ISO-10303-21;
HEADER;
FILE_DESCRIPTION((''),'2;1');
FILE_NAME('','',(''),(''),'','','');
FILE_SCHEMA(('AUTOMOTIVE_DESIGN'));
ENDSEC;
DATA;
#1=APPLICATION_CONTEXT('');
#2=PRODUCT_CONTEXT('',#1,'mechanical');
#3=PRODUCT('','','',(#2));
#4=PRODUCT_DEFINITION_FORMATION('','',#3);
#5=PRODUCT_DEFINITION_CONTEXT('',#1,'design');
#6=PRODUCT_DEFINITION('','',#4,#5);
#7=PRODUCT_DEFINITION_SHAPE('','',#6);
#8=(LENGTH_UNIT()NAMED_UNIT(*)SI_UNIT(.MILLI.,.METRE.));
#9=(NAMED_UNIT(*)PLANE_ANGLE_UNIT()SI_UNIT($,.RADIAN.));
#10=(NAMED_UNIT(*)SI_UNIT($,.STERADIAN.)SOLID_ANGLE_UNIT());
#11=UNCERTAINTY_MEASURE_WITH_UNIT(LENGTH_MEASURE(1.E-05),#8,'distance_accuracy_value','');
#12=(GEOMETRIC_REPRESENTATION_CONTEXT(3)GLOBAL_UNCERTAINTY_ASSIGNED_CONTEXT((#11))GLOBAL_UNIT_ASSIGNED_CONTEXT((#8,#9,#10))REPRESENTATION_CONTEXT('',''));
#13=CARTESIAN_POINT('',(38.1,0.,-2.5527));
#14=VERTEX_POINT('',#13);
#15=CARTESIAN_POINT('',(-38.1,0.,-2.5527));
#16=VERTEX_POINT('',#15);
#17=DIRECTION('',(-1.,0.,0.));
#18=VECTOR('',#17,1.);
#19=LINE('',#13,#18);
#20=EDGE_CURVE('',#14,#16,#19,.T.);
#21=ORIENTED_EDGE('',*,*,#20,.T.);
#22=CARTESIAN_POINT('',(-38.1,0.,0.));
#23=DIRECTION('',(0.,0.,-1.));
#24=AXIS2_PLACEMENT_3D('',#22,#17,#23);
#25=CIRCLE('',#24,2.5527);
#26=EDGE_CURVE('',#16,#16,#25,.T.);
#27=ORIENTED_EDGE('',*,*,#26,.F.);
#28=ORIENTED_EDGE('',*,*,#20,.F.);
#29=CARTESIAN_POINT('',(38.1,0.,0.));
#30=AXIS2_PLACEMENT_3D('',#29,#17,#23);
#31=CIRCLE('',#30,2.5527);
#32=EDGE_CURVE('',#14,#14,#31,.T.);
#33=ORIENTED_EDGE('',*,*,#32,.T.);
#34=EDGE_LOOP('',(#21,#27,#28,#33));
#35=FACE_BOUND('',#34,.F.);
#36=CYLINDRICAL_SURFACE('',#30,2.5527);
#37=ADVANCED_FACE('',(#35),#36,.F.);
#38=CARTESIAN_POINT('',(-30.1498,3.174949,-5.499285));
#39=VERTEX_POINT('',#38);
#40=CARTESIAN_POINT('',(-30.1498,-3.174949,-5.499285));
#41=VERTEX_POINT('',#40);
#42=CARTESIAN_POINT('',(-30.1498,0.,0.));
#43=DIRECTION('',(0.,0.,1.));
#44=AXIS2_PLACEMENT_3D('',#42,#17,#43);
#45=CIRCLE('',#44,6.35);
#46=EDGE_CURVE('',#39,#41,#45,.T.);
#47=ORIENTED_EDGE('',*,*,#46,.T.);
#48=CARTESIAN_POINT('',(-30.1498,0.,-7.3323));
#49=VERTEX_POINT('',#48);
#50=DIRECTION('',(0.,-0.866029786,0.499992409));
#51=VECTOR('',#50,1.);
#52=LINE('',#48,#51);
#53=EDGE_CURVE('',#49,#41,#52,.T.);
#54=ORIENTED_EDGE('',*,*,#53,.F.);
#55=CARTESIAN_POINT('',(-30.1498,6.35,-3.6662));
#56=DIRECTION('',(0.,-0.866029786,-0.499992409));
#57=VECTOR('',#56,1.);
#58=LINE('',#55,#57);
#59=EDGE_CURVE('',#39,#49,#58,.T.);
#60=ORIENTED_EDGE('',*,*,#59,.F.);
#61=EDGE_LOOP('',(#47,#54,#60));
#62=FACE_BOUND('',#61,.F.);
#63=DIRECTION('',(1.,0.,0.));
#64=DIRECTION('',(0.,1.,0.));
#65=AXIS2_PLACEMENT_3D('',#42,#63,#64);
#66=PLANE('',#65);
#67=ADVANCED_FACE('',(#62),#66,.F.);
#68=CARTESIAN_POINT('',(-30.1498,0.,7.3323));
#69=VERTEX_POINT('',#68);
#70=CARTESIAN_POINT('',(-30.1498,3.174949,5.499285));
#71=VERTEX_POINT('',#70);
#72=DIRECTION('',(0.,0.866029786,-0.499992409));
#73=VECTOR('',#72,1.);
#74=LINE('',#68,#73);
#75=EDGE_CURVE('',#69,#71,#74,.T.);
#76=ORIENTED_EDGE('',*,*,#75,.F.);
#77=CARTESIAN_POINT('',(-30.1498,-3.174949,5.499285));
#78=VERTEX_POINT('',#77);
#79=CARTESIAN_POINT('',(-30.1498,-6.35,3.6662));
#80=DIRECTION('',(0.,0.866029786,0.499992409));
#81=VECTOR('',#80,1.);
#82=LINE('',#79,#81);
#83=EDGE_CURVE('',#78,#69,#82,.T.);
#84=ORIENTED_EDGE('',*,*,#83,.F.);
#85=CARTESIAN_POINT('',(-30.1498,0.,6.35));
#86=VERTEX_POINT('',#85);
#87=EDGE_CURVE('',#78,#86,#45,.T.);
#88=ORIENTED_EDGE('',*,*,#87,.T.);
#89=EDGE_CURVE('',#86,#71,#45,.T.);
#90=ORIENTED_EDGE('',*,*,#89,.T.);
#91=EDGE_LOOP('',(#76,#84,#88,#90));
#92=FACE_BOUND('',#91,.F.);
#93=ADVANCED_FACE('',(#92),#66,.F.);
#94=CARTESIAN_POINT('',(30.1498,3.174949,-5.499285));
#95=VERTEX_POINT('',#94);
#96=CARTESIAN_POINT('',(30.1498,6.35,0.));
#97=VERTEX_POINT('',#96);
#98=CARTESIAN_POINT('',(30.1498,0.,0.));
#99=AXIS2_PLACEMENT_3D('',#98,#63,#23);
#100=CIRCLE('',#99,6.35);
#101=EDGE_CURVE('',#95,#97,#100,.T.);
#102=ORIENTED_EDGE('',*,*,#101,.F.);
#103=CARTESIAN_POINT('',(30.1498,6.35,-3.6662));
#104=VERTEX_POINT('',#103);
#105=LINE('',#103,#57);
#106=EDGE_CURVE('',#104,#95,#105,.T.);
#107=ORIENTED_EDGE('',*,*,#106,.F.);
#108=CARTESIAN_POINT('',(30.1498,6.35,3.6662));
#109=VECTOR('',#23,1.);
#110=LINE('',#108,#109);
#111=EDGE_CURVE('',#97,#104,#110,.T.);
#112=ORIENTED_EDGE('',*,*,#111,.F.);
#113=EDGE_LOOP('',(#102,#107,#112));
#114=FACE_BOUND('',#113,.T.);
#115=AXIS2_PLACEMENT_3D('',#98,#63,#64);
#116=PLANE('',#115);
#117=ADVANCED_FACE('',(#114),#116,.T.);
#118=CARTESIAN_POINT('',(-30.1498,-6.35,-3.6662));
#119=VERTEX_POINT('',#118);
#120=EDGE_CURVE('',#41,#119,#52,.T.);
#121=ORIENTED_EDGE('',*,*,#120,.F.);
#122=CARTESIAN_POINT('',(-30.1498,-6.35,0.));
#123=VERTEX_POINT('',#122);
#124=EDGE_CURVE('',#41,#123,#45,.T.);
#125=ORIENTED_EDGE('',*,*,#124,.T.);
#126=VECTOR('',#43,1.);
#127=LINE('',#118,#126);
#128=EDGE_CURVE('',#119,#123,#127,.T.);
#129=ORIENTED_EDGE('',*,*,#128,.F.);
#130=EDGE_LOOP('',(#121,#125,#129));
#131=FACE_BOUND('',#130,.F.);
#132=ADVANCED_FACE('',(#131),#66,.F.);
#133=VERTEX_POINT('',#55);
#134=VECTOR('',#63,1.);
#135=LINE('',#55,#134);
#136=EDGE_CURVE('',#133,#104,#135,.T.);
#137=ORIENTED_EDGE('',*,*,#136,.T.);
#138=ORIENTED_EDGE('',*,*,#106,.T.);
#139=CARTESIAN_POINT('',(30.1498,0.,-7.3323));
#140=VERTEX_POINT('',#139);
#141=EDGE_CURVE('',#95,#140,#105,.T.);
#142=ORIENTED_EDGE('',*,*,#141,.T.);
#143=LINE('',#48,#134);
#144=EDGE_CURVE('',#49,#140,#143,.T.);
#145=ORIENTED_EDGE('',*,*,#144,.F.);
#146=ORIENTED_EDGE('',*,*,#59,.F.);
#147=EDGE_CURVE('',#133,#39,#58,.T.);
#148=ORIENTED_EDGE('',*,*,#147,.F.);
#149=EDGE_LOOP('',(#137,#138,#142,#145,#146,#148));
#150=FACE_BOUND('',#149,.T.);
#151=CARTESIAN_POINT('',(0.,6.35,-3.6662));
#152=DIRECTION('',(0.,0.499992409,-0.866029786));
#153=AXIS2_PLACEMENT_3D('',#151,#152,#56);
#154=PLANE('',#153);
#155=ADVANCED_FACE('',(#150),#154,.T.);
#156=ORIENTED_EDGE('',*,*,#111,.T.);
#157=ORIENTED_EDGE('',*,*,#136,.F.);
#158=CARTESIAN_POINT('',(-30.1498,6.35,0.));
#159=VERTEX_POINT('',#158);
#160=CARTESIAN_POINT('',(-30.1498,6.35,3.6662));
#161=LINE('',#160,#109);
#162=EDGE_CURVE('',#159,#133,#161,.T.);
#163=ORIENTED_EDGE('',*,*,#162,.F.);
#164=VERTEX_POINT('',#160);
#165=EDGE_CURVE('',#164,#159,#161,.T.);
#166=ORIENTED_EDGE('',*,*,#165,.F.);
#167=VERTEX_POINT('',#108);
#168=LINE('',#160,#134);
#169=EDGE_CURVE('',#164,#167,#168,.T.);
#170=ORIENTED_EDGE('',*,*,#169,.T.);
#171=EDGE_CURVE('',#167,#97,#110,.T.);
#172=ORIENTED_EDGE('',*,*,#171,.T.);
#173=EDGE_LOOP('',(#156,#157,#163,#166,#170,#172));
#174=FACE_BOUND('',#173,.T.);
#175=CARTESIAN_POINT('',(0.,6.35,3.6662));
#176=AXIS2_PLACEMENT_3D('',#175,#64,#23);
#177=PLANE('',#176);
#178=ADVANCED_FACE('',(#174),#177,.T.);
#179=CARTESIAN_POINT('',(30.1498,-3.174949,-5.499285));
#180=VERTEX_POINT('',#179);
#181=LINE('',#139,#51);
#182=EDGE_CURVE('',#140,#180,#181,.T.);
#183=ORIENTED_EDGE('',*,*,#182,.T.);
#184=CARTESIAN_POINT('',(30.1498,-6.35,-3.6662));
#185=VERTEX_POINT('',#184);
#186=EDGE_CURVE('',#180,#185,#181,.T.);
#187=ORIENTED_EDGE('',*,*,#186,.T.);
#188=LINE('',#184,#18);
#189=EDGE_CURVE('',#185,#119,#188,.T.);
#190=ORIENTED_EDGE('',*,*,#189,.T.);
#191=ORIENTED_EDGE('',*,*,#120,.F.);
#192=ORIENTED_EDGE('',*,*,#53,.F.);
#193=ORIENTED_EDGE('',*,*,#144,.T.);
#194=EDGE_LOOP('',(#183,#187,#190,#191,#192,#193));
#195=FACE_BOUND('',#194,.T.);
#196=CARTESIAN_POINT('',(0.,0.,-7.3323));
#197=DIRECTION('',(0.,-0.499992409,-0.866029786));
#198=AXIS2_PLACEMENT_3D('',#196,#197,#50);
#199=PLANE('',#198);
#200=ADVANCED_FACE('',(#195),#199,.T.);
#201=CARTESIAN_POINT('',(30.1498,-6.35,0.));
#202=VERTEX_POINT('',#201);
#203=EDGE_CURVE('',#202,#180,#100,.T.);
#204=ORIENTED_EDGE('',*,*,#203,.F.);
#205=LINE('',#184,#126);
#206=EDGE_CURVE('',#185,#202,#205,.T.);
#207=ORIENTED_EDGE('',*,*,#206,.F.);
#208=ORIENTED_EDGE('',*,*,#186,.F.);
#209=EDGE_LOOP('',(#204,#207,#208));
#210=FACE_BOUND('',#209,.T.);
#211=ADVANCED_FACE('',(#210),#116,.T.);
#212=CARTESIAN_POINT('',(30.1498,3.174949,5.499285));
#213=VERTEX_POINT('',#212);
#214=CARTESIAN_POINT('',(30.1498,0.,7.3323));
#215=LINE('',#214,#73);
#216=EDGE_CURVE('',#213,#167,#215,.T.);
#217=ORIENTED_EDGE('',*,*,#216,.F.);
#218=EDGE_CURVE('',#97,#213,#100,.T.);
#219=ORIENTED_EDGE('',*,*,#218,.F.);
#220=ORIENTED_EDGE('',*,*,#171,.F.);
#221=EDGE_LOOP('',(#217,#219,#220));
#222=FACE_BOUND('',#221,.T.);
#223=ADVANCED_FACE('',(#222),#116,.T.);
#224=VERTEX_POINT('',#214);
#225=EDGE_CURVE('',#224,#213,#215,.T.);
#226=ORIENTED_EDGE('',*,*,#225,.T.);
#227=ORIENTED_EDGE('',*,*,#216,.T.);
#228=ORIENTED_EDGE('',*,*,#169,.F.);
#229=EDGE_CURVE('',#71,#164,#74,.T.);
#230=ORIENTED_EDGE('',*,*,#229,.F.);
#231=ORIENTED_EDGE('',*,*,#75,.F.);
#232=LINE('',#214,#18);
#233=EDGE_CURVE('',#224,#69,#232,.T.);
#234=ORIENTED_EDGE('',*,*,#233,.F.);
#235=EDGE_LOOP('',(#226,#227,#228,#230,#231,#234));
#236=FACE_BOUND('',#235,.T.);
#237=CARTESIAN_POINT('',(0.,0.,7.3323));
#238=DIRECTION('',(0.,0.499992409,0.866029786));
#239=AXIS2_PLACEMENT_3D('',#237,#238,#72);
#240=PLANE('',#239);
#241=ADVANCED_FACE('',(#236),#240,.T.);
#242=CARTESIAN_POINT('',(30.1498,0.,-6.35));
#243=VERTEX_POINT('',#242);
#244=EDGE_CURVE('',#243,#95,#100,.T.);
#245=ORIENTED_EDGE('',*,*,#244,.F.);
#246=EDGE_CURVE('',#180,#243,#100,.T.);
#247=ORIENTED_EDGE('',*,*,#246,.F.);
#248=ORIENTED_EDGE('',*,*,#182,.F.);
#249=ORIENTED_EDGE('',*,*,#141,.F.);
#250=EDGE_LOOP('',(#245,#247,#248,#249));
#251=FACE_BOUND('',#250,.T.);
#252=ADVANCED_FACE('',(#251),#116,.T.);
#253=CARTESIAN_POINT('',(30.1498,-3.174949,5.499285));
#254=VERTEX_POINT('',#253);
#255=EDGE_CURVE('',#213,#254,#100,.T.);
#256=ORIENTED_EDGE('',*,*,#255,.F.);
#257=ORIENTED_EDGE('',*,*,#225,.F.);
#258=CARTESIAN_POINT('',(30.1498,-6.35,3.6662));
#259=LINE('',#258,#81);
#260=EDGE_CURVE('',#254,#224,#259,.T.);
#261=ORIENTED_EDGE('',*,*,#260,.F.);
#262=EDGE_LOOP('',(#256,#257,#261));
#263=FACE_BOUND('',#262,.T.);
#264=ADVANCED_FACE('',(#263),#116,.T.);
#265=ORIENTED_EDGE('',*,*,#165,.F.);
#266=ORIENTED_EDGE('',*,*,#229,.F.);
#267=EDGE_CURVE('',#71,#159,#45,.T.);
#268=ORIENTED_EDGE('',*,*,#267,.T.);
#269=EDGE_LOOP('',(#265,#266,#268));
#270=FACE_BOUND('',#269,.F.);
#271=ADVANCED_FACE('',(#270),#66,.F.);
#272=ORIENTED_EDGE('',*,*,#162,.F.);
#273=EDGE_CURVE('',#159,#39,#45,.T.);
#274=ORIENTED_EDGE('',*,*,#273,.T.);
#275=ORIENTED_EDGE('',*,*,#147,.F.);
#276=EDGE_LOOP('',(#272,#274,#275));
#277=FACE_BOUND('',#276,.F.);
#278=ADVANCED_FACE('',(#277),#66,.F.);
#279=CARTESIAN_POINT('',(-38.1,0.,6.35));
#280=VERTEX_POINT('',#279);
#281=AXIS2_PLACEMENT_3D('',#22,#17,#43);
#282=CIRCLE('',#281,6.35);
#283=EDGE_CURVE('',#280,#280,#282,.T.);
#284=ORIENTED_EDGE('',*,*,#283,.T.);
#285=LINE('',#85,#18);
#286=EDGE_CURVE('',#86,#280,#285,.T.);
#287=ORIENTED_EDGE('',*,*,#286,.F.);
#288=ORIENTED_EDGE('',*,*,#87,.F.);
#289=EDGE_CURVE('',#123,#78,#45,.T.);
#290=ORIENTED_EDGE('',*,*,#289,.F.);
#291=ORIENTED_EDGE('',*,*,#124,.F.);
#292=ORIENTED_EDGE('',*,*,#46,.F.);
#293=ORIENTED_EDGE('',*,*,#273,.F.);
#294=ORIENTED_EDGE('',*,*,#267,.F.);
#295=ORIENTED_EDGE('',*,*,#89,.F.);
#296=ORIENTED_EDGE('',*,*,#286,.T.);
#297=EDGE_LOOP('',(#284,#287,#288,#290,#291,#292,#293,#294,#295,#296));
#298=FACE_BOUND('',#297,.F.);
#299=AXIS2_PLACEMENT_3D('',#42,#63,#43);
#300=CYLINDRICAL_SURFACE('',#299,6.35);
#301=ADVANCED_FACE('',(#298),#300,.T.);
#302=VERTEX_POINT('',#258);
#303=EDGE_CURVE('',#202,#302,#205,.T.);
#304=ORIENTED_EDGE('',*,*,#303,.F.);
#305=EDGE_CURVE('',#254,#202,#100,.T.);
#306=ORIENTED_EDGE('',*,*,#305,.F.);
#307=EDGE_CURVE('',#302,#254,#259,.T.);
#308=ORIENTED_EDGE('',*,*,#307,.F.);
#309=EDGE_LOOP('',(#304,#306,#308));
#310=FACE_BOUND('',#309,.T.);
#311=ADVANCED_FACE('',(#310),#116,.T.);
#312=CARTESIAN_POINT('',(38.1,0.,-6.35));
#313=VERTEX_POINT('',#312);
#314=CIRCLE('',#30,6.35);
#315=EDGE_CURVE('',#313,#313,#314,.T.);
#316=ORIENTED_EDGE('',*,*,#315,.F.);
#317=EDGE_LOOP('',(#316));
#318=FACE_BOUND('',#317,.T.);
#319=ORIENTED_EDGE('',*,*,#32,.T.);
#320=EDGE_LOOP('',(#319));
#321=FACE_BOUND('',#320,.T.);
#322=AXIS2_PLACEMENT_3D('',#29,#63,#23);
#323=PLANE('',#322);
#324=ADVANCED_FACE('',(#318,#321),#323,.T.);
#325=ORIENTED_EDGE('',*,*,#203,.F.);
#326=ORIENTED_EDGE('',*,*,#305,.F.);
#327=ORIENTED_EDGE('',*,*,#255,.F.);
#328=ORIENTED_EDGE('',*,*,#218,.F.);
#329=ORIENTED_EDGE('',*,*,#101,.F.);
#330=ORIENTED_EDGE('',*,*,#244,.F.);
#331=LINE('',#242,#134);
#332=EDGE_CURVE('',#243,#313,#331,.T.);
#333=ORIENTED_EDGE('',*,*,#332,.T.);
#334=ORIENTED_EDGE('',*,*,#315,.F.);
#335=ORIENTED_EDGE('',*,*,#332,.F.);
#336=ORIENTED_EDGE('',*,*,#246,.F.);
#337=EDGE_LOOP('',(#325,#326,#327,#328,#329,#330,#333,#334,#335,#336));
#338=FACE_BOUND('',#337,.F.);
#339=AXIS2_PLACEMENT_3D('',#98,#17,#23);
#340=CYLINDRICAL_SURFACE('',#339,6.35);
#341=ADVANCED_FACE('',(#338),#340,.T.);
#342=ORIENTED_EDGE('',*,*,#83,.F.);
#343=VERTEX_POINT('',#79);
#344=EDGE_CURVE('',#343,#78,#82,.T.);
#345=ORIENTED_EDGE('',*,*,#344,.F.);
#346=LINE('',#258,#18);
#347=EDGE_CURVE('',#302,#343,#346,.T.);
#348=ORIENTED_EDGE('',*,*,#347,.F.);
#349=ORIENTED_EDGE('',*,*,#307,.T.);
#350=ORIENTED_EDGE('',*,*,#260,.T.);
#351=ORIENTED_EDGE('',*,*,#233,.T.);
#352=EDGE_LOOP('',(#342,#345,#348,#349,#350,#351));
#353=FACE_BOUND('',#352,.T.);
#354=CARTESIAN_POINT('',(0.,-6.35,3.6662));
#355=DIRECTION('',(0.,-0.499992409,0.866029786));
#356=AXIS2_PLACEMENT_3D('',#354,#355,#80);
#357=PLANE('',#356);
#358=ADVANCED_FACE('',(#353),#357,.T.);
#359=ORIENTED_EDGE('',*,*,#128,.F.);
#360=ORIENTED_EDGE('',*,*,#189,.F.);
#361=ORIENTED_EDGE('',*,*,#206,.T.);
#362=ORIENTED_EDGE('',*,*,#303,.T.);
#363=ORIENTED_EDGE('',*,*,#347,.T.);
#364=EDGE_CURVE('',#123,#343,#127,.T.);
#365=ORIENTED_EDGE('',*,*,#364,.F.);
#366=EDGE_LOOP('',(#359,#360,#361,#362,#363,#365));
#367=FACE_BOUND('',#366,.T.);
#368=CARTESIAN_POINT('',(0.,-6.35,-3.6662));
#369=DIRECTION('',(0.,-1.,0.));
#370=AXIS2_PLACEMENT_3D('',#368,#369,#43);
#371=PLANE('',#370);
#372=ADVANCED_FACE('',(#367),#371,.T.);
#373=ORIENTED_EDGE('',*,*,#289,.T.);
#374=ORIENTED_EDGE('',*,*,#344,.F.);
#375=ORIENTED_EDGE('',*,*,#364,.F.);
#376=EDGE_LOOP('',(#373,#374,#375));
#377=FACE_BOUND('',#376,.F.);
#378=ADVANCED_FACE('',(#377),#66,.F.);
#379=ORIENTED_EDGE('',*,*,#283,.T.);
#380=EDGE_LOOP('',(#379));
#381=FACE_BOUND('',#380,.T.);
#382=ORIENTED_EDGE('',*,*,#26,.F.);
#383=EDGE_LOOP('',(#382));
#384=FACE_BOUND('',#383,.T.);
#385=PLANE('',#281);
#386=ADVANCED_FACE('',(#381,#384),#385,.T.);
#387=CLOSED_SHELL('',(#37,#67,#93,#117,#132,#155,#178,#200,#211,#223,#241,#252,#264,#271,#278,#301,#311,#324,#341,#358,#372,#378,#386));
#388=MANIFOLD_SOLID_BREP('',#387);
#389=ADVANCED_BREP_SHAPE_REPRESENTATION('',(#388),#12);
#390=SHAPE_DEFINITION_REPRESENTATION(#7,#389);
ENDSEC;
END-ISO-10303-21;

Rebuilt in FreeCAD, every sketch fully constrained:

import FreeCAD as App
import Part
import Sketcher

V = App.Vector
Q = App.Units.Quantity

doc = App.newDocument("Part")
body = doc.addObject("PartDesign::Body", "Body")

# Sketch on YZ plane
sketch1 = doc.addObject("Sketcher::SketchObject", "Sketch")
body.addObject(sketch1)
sketch1.AttachmentSupport = (doc.YZ_Plane, [""])
sketch1.MapMode = "FlatFace"
sketch1.addGeometry([
    Part.LineSegment(V(-6, -4, 0), V(0, -7, 0)),  # 0
    Part.LineSegment(V(0, -7, 0), V(6, -4, 0)),  # 1
    Part.LineSegment(V(6, -4, 0), V(6, 4, 0)),  # 2
    Part.LineSegment(V(6, 4, 0), V(0, 7, 0)),  # 3
    Part.LineSegment(V(0, 7, 0), V(-6, 4, 0)),  # 4
    Part.LineSegment(V(-6, 4, 0), V(-6, -4, 0)),  # 5
], False)
sketch1.addConstraint([
    Sketcher.Constraint("Coincident", 0, 2, 1, 1),
    Sketcher.Constraint("Coincident", 1, 2, 2, 1),
    Sketcher.Constraint("Coincident", 2, 2, 3, 1),
    Sketcher.Constraint("Coincident", 3, 2, 4, 1),
    Sketcher.Constraint("Coincident", 4, 2, 5, 1),
    Sketcher.Constraint("Coincident", 5, 2, 0, 1),
    Sketcher.Constraint("Vertical", 2),
    Sketcher.Constraint("Vertical", 5),
    Sketcher.Constraint("Symmetric", 0, 2, 3, 2, -1, 1),
    Sketcher.Constraint("Symmetric", 1, 2, 4, 2, -1, 1),
    Sketcher.Constraint("PointOnObject", 0, 2, -2),
    Sketcher.Constraint("Parallel", 0, 3),
    Sketcher.Constraint("Horizontal", 2, 2, 4, 2),
    Sketcher.Constraint("DistanceX", 4, 2, 2, 2, Q("0.5 in")),
    Sketcher.Constraint("Angle", 0, Q("-29.9995 deg")),
    Sketcher.Constraint("DistanceY", 0, 2, 2, 2, Q("0.433 in")),
])
pad1 = doc.addObject("PartDesign::Pad", "Pad")
body.addObject(pad1)
pad1.Profile = sketch1
pad1.Length = Q("2.374 in")
pad1.Midplane = True

# Sketch on YZ plane
sketch2 = doc.addObject("Sketcher::SketchObject", "Sketch001")
body.addObject(sketch2)
sketch2.AttachmentSupport = (doc.YZ_Plane, [""])
sketch2.MapMode = "FlatFace"
sketch2.AttachmentOffset = App.Placement(V(0, 0, -1.187 * 25.4), App.Rotation())
sketch2.addGeometry(Part.Circle(V(0, 0, 0), V(0, 0, 1), 6), False)
sketch2.addConstraint([
    Sketcher.Constraint("Coincident", 0, 3, -1, 1),
    Sketcher.Constraint("Diameter", 0, Q("0.5 in")),
])
pad2 = doc.addObject("PartDesign::Pad", "Pad001")
body.addObject(pad2)
pad2.Profile = sketch2
pad2.Length = Q("0.313 in")
pad2.Reversed = True

# Sketch on YZ plane
sketch3 = doc.addObject("Sketcher::SketchObject", "Sketch002")
body.addObject(sketch3)
sketch3.AttachmentSupport = (doc.YZ_Plane, [""])
sketch3.MapMode = "FlatFace"
sketch3.AttachmentOffset = App.Placement(V(0, 0, 1.187 * 25.4), App.Rotation())
sketch3.addGeometry(Part.Circle(V(0, 0, 0), V(0, 0, 1), 6), False)
sketch3.addConstraint([
    Sketcher.Constraint("Coincident", 0, 3, -1, 1),
    Sketcher.Constraint("Diameter", 0, Q("0.5 in")),
])
pad3 = doc.addObject("PartDesign::Pad", "Pad002")
body.addObject(pad3)
pad3.Profile = sketch3
pad3.Length = Q("0.313 in")

# Sketch on YZ plane
sketch4 = doc.addObject("Sketcher::SketchObject", "Sketch003")
body.addObject(sketch4)
sketch4.AttachmentSupport = (doc.YZ_Plane, [""])
sketch4.MapMode = "FlatFace"
sketch4.AttachmentOffset = App.Placement(V(0, 0, 1.5 * 25.4), App.Rotation())
sketch4.addGeometry(Part.Circle(V(0, 0, 0), V(0, 0, 1), 2.6), False)
sketch4.addConstraint([
    Sketcher.Constraint("Coincident", 0, 3, -1, 1),
    Sketcher.Constraint("Diameter", 0, Q("0.201 in")),
])
doc.recompute()
hole = doc.addObject("PartDesign::Hole", "Hole")
body.addObject(hole)
hole.Profile = sketch4
hole.ThreadType = "None"
hole.Diameter = Q("0.201 in")
hole.DepthType = "ThroughAll"

doc.recompute()
